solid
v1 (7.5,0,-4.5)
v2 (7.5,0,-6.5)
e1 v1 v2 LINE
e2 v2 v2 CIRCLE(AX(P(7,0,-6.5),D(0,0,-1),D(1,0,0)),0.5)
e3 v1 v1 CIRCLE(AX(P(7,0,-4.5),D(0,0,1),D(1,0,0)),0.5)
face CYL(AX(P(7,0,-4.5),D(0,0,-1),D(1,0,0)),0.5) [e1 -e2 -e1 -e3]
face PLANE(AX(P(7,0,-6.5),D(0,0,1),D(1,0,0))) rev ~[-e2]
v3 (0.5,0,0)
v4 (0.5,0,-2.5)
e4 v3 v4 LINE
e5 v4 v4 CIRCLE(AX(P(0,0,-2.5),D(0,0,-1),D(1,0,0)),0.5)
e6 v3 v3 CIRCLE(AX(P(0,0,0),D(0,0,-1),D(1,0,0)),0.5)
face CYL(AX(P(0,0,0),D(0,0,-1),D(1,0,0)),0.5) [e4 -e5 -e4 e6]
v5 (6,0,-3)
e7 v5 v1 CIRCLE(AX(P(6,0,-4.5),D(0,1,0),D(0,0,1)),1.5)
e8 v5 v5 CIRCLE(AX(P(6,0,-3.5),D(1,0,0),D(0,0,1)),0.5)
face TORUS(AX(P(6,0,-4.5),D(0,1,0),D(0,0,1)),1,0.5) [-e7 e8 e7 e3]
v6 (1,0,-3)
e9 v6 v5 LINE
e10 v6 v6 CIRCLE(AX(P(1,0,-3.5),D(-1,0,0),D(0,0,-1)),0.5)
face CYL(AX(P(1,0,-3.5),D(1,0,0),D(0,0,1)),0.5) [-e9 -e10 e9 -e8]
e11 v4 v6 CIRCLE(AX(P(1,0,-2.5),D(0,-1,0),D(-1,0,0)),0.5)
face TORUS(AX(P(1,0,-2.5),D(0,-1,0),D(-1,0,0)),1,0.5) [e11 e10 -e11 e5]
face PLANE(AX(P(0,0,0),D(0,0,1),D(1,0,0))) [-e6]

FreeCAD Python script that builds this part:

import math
import FreeCAD as App
import Part
import Sketcher

doc = App.newDocument("Part")
params = doc.addObject("Spreadsheet::Sheet", "Params")
for row, (alias, value) in enumerate([
    ("sketch1_diameter", "1 mm"),
    ("sketch2_radius", "1 mm"),
    ("sketch2_width", "5 mm"),
    ("sketch2_height", "2 mm"),
    ("sketch2_height2", "2.5 mm"),
], start=1):
    params.set(f"A{row}", alias)
    params.set(f"B{row}", "=" + value)
    params.setAlias(f"B{row}", alias)

body = doc.addObject("PartDesign::Body", "Body")

sketch1 = body.newObject("Sketcher::SketchObject", "Sketch")
sketch1.AttachmentSupport = (doc.getObject("XY_Plane"), [""])
sketch1.MapMode = "FlatFace"
sketch1.addGeometry(Part.Circle(App.Vector(0, 0, 0), App.Vector(0, 0, 1), 0.5), False)
sketch1.addConstraint([
    Sketcher.Constraint("Coincident", 0, 3, -1, 1),
    Sketcher.Constraint("Diameter", 0, 1.0),
])
sketch1.setExpression("Constraints[1]", "Params.sketch1_diameter")

sketch2 = body.newObject("Sketcher::SketchObject", "Sketch001")
sketch2.AttachmentSupport = (doc.getObject("XZ_Plane"), [""])
sketch2.MapMode = "FlatFace"
sketch2.addGeometry([
    Part.LineSegment(App.Vector(0, 0, 0), App.Vector(0, -2.5, 0)),
    Part.ArcOfCircle(Part.Circle(App.Vector(1, -2.5, 0), App.Vector(0, 0, 1), 1), math.radians(180), math.radians(270)),
    Part.LineSegment(App.Vector(1, -3.5, 0), App.Vector(6, -3.5, 0)),
    Part.ArcOfCircle(Part.Circle(App.Vector(6, -4.5, 0), App.Vector(0, 0, 1), 1), math.radians(0), math.radians(90)),
    Part.LineSegment(App.Vector(7, -4.5, 0), App.Vector(7, -6.5, 0)),
], False)
sketch2.addConstraint([
    Sketcher.Constraint("Tangent", 0, 2, 1, 1),
    Sketcher.Constraint("Tangent", 1, 2, 2, 1),
    Sketcher.Constraint("Tangent", 2, 2, 3, 2),
    Sketcher.Constraint("Tangent", 3, 1, 4, 1),
    Sketcher.Constraint("Vertical", 0),
    Sketcher.Constraint("Horizontal", 2),
    Sketcher.Constraint("Vertical", 4),
    Sketcher.Constraint("Coincident", 0, 1, -1, 1),
    Sketcher.Constraint("Equal", 1, 3),
    Sketcher.Constraint("Radius", 1, 1.0),
    Sketcher.Constraint("DistanceX", 2, 1, 2, 2, 5.0),
    Sketcher.Constraint("DistanceY", 4, 2, 4, 1, 2.0),
    Sketcher.Constraint("DistanceY", 0, 2, 0, 1, 2.5),
])
sketch2.setExpression("Constraints[9]", "Params.sketch2_radius")
sketch2.setExpression("Constraints[10]", "Params.sketch2_width")
sketch2.setExpression("Constraints[11]", "Params.sketch2_height")
sketch2.setExpression("Constraints[12]", "Params.sketch2_height2")
doc.recompute()

additivepipe = body.newObject("PartDesign::AdditivePipe", "AdditivePipe")
additivepipe.Profile = sketch1
additivepipe.Spine = (sketch2, ["Edge1", "Edge2", "Edge3", "Edge4", "Edge5"])

doc.recompute()
